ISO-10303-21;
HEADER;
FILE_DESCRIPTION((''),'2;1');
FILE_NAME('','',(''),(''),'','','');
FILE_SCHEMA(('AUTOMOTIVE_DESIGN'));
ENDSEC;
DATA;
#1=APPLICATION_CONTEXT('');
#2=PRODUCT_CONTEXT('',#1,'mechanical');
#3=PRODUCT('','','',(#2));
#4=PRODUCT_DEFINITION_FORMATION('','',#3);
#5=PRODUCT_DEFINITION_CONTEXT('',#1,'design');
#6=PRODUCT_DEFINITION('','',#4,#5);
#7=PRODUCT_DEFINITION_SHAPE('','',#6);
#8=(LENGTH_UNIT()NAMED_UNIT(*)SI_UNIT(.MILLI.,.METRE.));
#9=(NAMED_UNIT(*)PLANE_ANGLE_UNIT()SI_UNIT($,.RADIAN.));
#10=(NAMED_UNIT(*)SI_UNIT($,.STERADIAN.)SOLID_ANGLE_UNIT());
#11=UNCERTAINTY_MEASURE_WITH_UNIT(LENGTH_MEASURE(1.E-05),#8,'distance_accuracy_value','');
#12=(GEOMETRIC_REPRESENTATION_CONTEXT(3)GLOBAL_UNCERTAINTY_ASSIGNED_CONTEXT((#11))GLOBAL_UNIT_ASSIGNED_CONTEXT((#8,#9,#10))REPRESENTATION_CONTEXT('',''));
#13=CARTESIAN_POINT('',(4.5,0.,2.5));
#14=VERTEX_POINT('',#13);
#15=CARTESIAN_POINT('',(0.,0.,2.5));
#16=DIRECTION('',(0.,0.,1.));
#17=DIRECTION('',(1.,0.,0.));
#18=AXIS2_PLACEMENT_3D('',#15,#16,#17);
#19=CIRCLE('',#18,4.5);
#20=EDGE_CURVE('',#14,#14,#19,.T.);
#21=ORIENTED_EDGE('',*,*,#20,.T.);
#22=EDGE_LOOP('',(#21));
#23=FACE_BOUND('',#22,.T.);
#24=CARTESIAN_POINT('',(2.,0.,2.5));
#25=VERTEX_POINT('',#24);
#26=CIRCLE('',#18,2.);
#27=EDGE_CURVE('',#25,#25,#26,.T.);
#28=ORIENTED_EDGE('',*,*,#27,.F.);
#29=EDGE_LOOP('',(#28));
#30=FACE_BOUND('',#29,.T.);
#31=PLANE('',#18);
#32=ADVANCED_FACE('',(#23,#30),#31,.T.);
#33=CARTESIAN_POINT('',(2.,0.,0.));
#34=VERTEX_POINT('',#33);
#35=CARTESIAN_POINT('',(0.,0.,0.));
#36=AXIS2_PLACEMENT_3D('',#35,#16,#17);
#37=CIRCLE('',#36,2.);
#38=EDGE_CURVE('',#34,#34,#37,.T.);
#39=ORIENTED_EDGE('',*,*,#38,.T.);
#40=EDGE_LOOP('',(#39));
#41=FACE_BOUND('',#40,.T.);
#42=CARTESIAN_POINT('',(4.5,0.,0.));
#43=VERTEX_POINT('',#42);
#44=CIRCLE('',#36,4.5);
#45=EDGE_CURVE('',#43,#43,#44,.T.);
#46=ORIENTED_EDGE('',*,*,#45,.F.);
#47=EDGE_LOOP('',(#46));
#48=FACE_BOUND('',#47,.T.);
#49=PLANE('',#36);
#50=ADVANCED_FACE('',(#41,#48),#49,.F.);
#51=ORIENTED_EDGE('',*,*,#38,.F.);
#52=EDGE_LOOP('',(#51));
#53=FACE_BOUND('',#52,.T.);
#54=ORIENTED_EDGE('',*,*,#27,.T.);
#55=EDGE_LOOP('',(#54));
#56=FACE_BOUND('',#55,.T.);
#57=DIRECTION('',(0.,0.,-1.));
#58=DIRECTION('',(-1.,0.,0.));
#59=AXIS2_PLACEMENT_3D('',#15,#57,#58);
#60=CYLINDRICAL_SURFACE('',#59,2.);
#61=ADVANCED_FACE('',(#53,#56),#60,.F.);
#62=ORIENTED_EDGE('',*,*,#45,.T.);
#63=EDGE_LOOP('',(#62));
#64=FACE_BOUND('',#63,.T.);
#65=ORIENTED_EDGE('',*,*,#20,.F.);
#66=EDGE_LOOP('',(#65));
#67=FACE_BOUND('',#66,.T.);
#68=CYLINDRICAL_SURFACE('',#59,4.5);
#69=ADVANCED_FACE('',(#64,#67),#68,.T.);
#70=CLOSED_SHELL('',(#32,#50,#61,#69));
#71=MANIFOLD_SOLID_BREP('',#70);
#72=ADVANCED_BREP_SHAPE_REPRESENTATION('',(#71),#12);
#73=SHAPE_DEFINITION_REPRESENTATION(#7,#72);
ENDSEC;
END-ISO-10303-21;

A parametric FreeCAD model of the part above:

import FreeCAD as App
import Part
import Sketcher
from FreeCAD import Vector

doc = App.newDocument("Part")
body = doc.addObject("PartDesign::Body", "Body")

# Sketch on XY plane
sketch1 = doc.addObject("Sketcher::SketchObject", "Sketch")
body.addObject(sketch1)
sketch1.AttachmentSupport = (doc.XY_Plane, [""])
sketch1.MapMode = "FlatFace"
sketch1.addGeometry([
    Part.Circle(Vector(0, 0, 0), Vector(0, 0, 1), 4.5),
    Part.Circle(Vector(0, 0, 0), Vector(0, 0, 1), 2),
], False)
sketch1.addConstraint([
    Sketcher.Constraint("Coincident", 0, 3, -1, 1),
    Sketcher.Constraint("Coincident", 1, 3, -1, 1),
    Sketcher.Constraint("Diameter", 0, 9.0),
    Sketcher.Constraint("Diameter", 1, 4.0),
])
pad1 = doc.addObject("PartDesign::Pad", "Pad")
body.addObject(pad1)
pad1.Profile = sketch1
pad1.Length = 2.5

doc.recompute()
